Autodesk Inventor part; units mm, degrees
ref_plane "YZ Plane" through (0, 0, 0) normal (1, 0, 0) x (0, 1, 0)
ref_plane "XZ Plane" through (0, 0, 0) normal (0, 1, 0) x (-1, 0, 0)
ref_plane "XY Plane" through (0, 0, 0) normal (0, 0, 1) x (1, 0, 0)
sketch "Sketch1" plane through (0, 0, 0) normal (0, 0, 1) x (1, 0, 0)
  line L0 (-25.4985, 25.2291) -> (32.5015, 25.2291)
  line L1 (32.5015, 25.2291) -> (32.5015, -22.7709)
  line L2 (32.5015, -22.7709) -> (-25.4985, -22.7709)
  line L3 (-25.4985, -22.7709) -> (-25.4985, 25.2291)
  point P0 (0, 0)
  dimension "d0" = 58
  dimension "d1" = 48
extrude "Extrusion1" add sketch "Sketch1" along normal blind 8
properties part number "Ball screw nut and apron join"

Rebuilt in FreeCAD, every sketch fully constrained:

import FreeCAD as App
import Part
import Sketcher
Q = App.Units.Quantity


def add_polygon(sketch, points):
    """Adds a closed chain of lines whose ends are joined by coincident constraints."""
    first, n = sketch.GeometryCount, len(points)
    for a, b in zip(points, points[1:] + points[:1]):
        sketch.addGeometry(Part.LineSegment(App.Vector(*a, 0), App.Vector(*b, 0)), False)
    for i in range(n):
        sketch.addConstraint(Sketcher.Constraint("Coincident", first + i, 2, first + (i + 1) % n, 1))

doc = App.newDocument("Part")
body = doc.addObject("PartDesign::Body", "Body")

# Sketch on XY plane
sketch1 = body.newObject("Sketcher::SketchObject", "Sketch")
sketch1.AttachmentSupport = (doc.getObject("XY_Plane"), [""])
sketch1.MapMode = "FlatFace"
add_polygon(sketch1, [(33, 25), (-25, 25), (-25, -23), (33, -23)])  # lines 0-3
sketch1.addConstraint([
    Sketcher.Constraint("Horizontal", 0),
    Sketcher.Constraint("Vertical", 1),
    Sketcher.Constraint("Horizontal", 2),
    Sketcher.Constraint("Vertical", 3),
    Sketcher.Constraint("DistanceX", 0, 2, 0, 1, Q("58 mm")),
    Sketcher.Constraint("DistanceY", 1, 2, 1, 1, Q("48 mm")),
    Sketcher.Constraint("DistanceY", -1, 1, 0, 2, Q("25.229 mm")),
    Sketcher.Constraint("DistanceX", 0, 2, -1, 1, Q("25.4985 mm")),
])
pad1 = body.newObject("PartDesign::Pad", "Pad")
pad1.Profile = sketch1
pad1.Length = 8

doc.recompute()
